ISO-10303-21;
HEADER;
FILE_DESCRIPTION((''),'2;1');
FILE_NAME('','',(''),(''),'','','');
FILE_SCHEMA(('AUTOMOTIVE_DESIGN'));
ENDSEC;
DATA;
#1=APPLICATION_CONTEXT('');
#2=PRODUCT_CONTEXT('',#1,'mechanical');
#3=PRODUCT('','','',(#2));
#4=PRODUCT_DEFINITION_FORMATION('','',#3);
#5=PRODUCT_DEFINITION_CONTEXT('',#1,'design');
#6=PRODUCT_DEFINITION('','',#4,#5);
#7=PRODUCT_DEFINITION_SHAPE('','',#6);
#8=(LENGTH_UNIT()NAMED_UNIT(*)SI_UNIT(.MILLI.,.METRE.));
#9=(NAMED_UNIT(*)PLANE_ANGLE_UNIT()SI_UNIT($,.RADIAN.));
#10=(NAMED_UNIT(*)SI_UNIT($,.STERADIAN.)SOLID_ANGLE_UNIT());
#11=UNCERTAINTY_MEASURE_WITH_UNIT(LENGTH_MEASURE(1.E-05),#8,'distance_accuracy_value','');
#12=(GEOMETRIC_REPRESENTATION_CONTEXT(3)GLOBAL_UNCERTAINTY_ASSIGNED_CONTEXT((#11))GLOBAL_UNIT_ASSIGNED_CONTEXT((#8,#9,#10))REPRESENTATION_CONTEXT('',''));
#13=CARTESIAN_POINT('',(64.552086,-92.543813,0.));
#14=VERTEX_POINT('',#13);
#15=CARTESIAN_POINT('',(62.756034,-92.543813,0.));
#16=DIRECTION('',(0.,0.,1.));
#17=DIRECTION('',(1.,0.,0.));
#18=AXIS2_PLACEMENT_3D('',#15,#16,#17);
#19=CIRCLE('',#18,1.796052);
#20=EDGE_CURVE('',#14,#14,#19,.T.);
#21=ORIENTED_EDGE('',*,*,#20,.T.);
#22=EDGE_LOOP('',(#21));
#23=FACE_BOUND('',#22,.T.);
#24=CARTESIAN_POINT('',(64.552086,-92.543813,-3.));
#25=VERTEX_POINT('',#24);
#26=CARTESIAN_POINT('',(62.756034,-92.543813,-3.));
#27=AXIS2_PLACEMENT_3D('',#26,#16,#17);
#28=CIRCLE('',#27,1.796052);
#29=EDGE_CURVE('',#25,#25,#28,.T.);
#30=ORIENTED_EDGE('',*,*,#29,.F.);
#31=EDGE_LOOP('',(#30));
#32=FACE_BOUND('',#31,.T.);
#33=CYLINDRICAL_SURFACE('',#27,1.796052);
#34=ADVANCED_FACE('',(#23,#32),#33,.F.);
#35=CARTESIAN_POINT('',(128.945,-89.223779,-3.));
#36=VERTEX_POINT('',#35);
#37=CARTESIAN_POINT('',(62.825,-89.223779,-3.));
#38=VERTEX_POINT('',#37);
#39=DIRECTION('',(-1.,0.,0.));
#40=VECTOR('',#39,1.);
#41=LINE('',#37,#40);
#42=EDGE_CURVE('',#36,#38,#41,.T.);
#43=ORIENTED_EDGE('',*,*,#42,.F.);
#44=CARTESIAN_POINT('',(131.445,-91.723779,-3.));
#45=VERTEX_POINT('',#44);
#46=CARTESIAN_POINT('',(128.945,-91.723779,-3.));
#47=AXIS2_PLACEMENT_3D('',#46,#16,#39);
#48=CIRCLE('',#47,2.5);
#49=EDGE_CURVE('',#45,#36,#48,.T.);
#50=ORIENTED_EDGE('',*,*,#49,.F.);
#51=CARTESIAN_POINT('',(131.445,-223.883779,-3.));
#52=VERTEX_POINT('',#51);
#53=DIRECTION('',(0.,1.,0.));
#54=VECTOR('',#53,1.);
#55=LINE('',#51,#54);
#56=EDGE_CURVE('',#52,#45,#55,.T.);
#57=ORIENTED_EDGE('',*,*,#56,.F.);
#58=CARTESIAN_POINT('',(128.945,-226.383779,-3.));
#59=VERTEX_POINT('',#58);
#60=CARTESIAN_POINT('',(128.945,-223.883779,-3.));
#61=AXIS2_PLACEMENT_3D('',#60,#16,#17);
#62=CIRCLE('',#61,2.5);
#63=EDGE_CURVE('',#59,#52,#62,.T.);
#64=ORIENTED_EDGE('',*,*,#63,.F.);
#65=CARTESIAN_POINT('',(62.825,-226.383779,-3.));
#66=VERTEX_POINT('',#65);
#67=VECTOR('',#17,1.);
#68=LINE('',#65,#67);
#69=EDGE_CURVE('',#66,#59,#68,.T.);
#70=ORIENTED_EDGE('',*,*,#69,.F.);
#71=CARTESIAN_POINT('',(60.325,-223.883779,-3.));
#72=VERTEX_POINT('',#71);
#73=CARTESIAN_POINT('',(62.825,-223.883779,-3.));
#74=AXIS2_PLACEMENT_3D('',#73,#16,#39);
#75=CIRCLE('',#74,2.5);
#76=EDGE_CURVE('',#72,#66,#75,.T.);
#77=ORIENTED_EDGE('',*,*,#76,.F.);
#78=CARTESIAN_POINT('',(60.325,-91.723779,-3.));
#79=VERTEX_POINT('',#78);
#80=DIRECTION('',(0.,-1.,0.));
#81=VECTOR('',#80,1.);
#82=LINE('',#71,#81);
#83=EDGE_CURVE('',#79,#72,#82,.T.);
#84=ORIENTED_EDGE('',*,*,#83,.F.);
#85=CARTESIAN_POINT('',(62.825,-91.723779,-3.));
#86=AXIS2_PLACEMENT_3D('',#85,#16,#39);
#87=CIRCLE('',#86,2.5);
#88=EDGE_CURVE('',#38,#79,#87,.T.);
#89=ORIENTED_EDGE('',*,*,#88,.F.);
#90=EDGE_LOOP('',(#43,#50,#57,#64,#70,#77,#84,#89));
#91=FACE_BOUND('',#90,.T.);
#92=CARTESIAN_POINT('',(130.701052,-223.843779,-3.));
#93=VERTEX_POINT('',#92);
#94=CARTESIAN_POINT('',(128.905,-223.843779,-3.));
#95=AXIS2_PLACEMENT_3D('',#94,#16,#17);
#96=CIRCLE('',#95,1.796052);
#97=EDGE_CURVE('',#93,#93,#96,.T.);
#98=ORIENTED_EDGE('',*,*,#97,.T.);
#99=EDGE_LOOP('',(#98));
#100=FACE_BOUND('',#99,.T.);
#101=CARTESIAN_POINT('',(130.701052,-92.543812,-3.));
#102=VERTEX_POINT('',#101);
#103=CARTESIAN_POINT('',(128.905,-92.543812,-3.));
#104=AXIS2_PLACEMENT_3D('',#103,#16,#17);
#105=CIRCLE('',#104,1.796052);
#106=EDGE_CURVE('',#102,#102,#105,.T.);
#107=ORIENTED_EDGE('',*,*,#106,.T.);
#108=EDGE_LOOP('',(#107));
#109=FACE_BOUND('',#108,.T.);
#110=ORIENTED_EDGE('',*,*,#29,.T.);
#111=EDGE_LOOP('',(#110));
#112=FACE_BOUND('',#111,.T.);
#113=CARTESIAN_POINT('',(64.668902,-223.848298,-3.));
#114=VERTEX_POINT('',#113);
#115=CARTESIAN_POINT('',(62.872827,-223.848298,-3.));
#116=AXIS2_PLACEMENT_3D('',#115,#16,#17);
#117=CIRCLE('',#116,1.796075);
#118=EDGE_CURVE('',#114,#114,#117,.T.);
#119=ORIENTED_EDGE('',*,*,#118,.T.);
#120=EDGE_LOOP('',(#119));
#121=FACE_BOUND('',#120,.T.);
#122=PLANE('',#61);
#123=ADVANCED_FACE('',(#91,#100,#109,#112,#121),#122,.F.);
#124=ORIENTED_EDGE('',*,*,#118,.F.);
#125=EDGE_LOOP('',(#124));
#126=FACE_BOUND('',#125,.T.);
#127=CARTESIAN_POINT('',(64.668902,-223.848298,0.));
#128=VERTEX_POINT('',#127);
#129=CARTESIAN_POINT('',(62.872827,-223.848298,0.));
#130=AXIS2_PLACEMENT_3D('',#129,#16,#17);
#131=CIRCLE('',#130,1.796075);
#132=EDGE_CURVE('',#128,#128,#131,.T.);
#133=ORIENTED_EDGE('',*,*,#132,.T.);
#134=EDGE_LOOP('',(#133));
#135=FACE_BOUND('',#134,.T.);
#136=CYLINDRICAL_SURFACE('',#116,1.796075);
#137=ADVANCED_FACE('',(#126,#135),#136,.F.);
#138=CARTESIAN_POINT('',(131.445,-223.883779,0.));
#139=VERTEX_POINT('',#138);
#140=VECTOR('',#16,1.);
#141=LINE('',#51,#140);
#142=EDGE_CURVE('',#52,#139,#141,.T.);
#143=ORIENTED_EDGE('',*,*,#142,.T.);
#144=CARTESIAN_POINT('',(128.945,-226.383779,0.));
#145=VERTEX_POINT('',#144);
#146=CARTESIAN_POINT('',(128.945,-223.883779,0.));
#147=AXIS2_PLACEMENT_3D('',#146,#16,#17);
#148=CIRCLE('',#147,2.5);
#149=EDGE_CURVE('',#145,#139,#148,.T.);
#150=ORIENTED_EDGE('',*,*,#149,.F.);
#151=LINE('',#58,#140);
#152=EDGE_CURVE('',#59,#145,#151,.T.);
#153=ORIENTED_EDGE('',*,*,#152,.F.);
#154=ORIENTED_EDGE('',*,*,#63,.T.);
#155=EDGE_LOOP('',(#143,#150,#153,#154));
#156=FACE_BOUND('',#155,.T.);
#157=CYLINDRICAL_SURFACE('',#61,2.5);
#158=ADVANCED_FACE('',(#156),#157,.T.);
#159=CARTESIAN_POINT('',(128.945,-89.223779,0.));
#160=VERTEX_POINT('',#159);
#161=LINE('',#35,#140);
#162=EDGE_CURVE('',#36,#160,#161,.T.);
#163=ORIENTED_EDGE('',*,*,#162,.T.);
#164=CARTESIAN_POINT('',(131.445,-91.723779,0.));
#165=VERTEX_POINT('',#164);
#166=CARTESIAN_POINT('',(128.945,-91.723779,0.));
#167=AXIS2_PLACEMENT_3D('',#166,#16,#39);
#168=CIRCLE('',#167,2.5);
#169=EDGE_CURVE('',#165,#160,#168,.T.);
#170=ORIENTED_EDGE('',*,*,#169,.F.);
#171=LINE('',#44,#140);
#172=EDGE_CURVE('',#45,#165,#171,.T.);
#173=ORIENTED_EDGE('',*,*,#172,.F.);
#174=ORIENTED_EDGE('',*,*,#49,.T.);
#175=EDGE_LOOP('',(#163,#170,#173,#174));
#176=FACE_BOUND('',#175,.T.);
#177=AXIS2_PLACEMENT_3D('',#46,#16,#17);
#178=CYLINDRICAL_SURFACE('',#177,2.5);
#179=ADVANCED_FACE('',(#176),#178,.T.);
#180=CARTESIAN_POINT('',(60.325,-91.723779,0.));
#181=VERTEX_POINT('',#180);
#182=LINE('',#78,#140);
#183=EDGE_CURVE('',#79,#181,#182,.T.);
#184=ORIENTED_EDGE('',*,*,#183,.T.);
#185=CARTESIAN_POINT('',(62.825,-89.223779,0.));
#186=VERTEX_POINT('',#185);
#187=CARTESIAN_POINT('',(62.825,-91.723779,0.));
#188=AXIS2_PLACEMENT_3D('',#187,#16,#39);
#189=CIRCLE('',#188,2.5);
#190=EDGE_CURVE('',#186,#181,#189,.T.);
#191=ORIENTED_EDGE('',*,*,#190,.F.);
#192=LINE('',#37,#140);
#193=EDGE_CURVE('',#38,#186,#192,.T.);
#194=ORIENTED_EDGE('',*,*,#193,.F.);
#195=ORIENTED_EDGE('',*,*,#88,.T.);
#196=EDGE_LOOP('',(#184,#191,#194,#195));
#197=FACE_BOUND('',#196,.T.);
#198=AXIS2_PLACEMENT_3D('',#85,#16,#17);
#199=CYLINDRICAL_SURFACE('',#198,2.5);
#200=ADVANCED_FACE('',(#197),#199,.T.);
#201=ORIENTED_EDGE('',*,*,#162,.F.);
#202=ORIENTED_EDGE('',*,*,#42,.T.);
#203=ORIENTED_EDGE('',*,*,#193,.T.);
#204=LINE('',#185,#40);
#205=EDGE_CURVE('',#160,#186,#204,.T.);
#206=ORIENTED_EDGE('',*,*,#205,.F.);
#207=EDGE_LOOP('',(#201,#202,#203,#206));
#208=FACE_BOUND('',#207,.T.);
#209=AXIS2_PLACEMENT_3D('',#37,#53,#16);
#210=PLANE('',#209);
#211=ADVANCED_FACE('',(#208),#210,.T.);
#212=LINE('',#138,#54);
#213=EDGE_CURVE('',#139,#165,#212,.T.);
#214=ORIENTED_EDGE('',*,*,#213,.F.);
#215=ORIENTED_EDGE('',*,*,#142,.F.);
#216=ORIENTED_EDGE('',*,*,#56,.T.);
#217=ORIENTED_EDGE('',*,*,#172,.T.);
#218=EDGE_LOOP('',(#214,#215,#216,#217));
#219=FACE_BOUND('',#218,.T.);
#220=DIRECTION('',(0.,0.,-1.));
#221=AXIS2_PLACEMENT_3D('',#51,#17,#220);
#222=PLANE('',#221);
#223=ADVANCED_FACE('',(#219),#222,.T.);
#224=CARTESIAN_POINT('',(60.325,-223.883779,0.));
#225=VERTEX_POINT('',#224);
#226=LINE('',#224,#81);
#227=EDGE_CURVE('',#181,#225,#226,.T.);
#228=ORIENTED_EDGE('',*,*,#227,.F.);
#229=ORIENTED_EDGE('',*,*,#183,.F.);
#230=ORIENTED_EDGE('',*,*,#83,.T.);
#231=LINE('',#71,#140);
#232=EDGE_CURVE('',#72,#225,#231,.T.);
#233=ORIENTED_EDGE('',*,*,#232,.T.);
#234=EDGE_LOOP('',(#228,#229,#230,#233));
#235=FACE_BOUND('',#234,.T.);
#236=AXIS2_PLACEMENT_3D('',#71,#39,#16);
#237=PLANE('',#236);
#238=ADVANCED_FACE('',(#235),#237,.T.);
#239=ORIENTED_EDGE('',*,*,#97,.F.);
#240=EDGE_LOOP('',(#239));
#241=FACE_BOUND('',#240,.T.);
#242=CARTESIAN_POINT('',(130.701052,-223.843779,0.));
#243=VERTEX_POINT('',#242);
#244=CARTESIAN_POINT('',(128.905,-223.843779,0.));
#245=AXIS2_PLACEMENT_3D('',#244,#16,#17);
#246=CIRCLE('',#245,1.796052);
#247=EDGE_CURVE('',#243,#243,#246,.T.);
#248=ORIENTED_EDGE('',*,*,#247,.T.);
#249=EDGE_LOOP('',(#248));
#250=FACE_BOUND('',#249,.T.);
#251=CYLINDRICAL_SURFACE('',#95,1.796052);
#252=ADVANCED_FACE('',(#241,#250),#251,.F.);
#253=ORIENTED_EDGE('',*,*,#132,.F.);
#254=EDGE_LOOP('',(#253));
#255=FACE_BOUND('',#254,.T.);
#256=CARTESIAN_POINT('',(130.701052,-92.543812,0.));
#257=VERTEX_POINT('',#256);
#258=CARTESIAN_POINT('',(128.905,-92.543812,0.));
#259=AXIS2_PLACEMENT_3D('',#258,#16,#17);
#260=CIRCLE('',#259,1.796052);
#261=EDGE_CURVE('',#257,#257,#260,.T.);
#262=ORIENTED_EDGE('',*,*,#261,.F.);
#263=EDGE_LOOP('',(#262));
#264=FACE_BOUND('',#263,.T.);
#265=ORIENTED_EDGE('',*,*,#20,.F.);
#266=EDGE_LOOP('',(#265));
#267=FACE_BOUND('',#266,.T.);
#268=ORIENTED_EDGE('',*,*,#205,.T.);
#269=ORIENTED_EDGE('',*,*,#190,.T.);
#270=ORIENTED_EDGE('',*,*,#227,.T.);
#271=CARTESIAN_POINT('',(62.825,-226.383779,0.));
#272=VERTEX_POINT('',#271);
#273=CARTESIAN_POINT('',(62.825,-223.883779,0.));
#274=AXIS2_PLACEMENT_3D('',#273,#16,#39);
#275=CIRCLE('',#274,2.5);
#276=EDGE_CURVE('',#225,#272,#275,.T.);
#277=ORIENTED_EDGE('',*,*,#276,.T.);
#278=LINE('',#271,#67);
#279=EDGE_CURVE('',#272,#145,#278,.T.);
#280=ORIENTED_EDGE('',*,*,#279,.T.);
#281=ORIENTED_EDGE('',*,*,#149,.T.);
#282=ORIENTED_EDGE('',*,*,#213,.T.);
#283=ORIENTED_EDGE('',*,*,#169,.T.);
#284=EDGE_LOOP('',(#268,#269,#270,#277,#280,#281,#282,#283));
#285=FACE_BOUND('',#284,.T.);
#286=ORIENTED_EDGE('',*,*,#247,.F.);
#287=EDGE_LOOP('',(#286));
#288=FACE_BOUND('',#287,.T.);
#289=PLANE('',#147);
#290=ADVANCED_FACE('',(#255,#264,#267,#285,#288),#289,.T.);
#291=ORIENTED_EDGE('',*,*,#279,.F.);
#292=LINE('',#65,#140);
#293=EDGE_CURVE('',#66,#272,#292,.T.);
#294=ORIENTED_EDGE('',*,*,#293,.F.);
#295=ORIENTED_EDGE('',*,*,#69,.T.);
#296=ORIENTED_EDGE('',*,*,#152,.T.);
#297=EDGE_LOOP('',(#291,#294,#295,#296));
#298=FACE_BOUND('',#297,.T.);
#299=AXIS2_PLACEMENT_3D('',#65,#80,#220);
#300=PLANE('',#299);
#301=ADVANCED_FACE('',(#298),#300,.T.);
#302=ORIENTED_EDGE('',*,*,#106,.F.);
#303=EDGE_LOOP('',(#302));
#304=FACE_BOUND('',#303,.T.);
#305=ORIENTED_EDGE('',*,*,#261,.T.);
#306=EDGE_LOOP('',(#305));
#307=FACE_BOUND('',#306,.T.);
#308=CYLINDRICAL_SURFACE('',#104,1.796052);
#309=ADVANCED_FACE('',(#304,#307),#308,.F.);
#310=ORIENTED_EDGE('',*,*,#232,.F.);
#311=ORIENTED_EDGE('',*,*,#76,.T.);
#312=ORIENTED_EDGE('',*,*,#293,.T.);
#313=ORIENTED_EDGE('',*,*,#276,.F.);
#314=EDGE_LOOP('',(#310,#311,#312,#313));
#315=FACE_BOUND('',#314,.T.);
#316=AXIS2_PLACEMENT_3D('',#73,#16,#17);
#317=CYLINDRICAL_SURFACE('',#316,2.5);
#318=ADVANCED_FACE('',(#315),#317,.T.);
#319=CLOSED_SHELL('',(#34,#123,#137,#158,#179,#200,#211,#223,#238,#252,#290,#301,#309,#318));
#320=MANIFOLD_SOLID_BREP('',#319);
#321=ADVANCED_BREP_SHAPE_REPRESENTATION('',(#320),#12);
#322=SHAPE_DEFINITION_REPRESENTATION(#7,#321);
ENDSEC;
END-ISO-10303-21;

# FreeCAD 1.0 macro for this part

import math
import FreeCAD as App
import Part
import Sketcher
from FreeCAD import Vector

doc = App.newDocument("Part")
body = doc.addObject("PartDesign::Body", "Body")

# Sketch on XY plane
sketch1 = doc.addObject("Sketcher::SketchObject", "Sketch")
body.addObject(sketch1)
sketch1.AttachmentSupport = (doc.XY_Plane, [""])
sketch1.MapMode = "FlatFace"
sketch1.addGeometry([
    Part.LineSegment(Vector(62.825, -226.383779, 0), Vector(128.945, -226.383779, 0)),  # 0
    Part.ArcOfCircle(Part.Circle(Vector(128.945, -223.883779, 0), Vector(0, 0, 1), 2.5), math.radians(-90), math.radians(0)),  # 1
    Part.LineSegment(Vector(131.445, -223.883779, 0), Vector(131.445, -91.723779, 0)),  # 2
    Part.ArcOfCircle(Part.Circle(Vector(128.945, -91.723779, 0), Vector(0, 0, 1), 2.5), math.radians(0), math.radians(90)),  # 3
    Part.LineSegment(Vector(128.945, -89.223779, 0), Vector(62.825, -89.223779, 0)),  # 4
    Part.ArcOfCircle(Part.Circle(Vector(62.825, -91.723779, 0), Vector(0, 0, 1), 2.5), math.radians(90), math.radians(180)),  # 5
    Part.LineSegment(Vector(60.325, -91.723779, 0), Vector(60.325, -223.883779, 0)),  # 6
    Part.ArcOfCircle(Part.Circle(Vector(62.825, -223.883779, 0), Vector(0, 0, 1), 2.5), math.radians(180), math.radians(270)),  # 7
    Part.Circle(Vector(62.872827, -223.848298, 0), Vector(0, 0, 1), 1.796075),  # 8
    Part.Circle(Vector(128.905, -223.843779, 0), Vector(0, 0, 1), 1.796052),  # 9
    Part.Circle(Vector(62.756034, -92.543813, 0), Vector(0, 0, 1), 1.796052),  # 10
    Part.Circle(Vector(128.905, -92.543812, 0), Vector(0, 0, 1), 1.796052),  # 11
], False)
sketch1.addConstraint([
    Sketcher.Constraint("Tangent", 0, 2, 1, 1),
    Sketcher.Constraint("Tangent", 1, 2, 2, 1),
    Sketcher.Constraint("Tangent", 2, 2, 3, 1),
    Sketcher.Constraint("Tangent", 3, 2, 4, 1),
    Sketcher.Constraint("Tangent", 4, 2, 5, 1),
    Sketcher.Constraint("Tangent", 5, 2, 6, 1),
    Sketcher.Constraint("Tangent", 6, 2, 7, 1),
    Sketcher.Constraint("Tangent", 7, 2, 0, 1),
    Sketcher.Constraint("Horizontal", 0),
    Sketcher.Constraint("Vertical", 2),
    Sketcher.Constraint("Horizontal", 4),
    Sketcher.Constraint("Vertical", 6),
    Sketcher.Constraint("Equal", 1, 3),
    Sketcher.Constraint("Equal", 3, 5),
    Sketcher.Constraint("Equal", 5, 7),
    Sketcher.Constraint("Equal", 9, 10),
    Sketcher.Constraint("Equal", 10, 11),
    Sketcher.Constraint("Horizontal", 10, 3, 11, 3),
    Sketcher.Constraint("Vertical", 9, 3, 11, 3),
    Sketcher.Constraint("Radius", 1, 2.5),
    Sketcher.Constraint("DistanceX", 0, 1, 0, 2, 66.12),
    Sketcher.Constraint("DistanceY", 2, 1, 2, 2, 132.16),
    Sketcher.Constraint("Diameter", 8, 3.592149),
    Sketcher.Constraint("DistanceX", 9, 3, 1, 3, 0.04),
    Sketcher.Constraint("DistanceY", 1, 3, 9, 3, 0.04),
    Sketcher.Constraint("Diameter", 9, 3.592104),
    Sketcher.Constraint("DistanceX", -1, 1, 1, 3, 128.945),
    Sketcher.Constraint("DistanceY", 1, 3, -1, 1, 223.883779),
    Sketcher.Constraint("DistanceY", 7, 3, 8, 3, 0.035481),
    Sketcher.Constraint("DistanceX", -1, 1, 8, 3, 62.872827),
    Sketcher.Constraint("DistanceX", -1, 1, 10, 3, 62.756034),
    Sketcher.Constraint("DistanceY", 10, 3, -1, 1, 92.543813),
])
pad1 = doc.addObject("PartDesign::Pad", "Pad")
body.addObject(pad1)
pad1.Profile = sketch1
pad1.Length = 3
pad1.Reversed = True

doc.recompute()
